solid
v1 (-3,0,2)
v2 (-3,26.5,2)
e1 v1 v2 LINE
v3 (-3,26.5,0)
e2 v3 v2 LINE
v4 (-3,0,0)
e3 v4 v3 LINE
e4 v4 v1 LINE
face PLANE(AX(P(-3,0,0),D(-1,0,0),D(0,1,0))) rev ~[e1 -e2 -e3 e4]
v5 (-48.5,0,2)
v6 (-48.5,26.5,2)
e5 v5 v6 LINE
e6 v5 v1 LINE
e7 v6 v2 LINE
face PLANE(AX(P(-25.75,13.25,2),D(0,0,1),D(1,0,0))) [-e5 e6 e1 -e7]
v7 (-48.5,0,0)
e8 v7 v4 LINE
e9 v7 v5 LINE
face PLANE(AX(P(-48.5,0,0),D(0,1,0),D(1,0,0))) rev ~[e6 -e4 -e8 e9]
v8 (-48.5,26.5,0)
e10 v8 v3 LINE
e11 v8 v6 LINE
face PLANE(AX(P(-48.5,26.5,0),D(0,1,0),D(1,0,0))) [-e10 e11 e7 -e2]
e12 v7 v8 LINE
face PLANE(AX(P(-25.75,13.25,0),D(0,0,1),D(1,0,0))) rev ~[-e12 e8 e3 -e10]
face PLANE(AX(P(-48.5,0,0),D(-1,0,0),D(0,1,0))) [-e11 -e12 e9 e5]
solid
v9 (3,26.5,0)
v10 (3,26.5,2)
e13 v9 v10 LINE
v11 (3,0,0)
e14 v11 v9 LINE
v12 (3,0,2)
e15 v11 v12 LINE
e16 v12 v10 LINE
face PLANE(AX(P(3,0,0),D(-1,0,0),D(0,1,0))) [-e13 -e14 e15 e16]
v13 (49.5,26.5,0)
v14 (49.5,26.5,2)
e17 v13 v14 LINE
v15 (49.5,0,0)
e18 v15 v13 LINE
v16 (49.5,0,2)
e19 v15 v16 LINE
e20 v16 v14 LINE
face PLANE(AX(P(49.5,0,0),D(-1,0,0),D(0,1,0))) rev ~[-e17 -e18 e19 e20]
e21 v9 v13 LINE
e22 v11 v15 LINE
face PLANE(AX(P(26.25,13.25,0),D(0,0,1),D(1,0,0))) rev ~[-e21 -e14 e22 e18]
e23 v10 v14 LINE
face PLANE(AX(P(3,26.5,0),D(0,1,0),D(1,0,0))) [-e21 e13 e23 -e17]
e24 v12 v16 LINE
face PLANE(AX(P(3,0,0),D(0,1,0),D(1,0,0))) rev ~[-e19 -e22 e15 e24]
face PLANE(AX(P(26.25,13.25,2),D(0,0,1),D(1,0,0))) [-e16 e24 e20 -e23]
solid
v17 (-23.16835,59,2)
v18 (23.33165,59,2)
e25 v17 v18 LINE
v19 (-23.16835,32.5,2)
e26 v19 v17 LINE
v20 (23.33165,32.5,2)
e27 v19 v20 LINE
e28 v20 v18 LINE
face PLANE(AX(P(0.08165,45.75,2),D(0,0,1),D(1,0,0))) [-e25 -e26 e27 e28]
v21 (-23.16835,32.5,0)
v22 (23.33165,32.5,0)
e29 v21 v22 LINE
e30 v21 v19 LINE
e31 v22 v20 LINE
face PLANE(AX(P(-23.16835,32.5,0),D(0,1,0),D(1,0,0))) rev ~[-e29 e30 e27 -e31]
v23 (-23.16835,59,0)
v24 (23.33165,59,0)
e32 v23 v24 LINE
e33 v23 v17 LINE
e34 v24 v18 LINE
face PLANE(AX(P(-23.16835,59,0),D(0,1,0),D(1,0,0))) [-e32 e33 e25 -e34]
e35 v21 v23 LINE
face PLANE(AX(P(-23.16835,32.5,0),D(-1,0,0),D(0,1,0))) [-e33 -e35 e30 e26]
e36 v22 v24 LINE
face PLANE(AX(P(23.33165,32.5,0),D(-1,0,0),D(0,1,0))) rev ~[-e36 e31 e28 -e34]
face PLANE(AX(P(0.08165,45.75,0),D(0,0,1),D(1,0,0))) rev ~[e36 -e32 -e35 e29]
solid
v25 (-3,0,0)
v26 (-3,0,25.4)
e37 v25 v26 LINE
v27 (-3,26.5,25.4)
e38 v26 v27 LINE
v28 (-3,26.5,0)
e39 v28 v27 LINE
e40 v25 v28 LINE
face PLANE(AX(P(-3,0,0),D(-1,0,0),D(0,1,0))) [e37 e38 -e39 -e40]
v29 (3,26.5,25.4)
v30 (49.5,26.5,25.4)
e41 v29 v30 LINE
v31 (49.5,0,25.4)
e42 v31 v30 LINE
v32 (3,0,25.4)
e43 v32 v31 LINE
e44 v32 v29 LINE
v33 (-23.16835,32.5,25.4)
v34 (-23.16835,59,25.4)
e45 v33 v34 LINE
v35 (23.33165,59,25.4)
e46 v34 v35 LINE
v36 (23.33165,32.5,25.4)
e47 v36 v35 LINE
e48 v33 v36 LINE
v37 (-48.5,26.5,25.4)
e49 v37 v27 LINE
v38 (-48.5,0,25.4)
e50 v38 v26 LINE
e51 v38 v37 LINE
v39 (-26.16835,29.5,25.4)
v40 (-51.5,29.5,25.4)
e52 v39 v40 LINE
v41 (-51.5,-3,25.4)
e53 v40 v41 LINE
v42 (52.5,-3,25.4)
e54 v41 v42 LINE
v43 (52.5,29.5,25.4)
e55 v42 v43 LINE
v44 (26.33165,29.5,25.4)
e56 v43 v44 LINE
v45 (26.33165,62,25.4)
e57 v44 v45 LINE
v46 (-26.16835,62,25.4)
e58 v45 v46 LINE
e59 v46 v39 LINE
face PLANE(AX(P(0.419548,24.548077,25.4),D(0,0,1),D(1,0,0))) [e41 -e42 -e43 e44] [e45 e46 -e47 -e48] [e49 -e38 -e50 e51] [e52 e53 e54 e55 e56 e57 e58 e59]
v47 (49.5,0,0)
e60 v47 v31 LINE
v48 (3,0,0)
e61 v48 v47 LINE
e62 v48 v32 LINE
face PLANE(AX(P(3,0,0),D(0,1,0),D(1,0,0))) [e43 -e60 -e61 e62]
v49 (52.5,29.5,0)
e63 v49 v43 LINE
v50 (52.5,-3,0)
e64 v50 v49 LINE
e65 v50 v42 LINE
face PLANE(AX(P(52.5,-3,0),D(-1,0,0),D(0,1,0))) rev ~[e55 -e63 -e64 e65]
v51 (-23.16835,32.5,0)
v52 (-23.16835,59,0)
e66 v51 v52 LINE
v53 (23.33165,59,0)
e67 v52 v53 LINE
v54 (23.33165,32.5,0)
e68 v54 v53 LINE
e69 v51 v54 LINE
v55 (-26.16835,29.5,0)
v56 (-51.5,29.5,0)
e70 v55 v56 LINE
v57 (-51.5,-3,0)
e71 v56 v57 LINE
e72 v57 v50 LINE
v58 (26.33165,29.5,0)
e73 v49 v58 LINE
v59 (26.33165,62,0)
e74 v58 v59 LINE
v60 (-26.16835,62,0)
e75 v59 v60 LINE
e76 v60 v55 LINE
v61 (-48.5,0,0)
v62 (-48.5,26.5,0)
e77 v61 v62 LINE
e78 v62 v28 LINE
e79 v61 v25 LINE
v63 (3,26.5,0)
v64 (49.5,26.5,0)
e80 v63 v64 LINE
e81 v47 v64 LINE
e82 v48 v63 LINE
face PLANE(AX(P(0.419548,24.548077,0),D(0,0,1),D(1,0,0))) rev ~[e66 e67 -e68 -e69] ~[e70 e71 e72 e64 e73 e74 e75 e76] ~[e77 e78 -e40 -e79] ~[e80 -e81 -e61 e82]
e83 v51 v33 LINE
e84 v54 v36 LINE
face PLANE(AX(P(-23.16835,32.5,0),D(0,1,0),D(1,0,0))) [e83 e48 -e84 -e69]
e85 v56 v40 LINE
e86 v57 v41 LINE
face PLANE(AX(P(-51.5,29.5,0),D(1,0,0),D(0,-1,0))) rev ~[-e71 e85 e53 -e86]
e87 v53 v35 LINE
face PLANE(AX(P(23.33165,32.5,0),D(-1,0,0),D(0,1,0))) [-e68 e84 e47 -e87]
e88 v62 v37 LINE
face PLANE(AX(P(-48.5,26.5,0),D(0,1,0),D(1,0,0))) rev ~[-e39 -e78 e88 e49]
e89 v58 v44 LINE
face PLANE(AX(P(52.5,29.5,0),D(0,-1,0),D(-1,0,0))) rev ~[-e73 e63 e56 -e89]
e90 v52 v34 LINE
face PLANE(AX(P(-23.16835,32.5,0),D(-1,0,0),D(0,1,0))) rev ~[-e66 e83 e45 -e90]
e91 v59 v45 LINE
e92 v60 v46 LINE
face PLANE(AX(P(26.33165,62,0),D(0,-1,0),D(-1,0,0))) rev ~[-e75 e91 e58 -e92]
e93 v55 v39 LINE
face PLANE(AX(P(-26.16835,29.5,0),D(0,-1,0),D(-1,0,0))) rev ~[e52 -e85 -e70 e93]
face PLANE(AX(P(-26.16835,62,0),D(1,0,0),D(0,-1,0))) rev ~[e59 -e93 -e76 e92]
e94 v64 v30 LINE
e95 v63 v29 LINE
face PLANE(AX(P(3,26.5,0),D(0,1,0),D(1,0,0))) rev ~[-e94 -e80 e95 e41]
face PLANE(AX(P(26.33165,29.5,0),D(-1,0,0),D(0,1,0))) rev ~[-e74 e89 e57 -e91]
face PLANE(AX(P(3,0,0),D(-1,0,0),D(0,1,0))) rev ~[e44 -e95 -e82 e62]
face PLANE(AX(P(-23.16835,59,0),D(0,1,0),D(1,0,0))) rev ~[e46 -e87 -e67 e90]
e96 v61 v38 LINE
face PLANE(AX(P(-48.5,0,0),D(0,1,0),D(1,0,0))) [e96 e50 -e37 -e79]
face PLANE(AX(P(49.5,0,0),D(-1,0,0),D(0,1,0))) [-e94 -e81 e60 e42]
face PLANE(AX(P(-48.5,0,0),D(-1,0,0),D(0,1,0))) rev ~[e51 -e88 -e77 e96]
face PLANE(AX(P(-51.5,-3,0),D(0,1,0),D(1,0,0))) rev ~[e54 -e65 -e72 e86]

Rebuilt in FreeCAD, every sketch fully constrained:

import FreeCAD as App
import Part
import Sketcher
Q = App.Units.Quantity


def add_polygon(sketch, points):
    """Adds a closed chain of lines whose ends are joined by coincident constraints."""
    first, n = sketch.GeometryCount, len(points)
    for a, b in zip(points, points[1:] + points[:1]):
        sketch.addGeometry(Part.LineSegment(App.Vector(*a, 0), App.Vector(*b, 0)), False)
    for i in range(n):
        sketch.addConstraint(Sketcher.Constraint("Coincident", first + i, 2, first + (i + 1) % n, 1))

doc = App.newDocument("Part")
body = doc.addObject("PartDesign::Body", "Body")
body.AllowCompound = True

# Sketch on XY plane
sketch1 = body.newObject("Sketcher::SketchObject", "Sketch")
sketch1.AttachmentSupport = (doc.getObject("XY_Plane"), [""])
sketch1.MapMode = "FlatFace"
add_polygon(sketch1, [(-48, 26), (-48, 0), (-3, 0), (-3, 26)])  # lines 0-3
add_polygon(sketch1, [(3, 26), (3, 0), (50, 0), (50, 26)])  # lines 4-7
add_polygon(sketch1, [(-23, 59), (-23, 32), (23, 32), (23, 59)])  # lines 8-11
sketch1.addConstraint([
    Sketcher.Constraint("Vertical", 0),
    Sketcher.Constraint("Horizontal", 1),
    Sketcher.Constraint("Vertical", 2),
    Sketcher.Constraint("Horizontal", 3),
    Sketcher.Constraint("Vertical", 4),
    Sketcher.Constraint("Horizontal", 5),
    Sketcher.Constraint("Vertical", 6),
    Sketcher.Constraint("Horizontal", 7),
    Sketcher.Constraint("Vertical", 8),
    Sketcher.Constraint("Horizontal", 9),
    Sketcher.Constraint("Vertical", 10),
    Sketcher.Constraint("Horizontal", 11),
    Sketcher.Constraint("Symmetric", 1, 2, 4, 2, -1, 1),
    Sketcher.Constraint("PointOnObject", 0, 2, -1),
    Sketcher.Constraint("Horizontal", 3, 2, 6, 2),
    Sketcher.Constraint("Equal", 7, 9),
    Sketcher.Constraint("Equal", 6, 8),
    Sketcher.Constraint("DistanceX", 1, 1, 1, 2, Q("45.5 mm")),
    Sketcher.Constraint("DistanceX", 5, 1, 5, 2, Q("46.5 mm")),
    Sketcher.Constraint("DistanceY", 0, 2, 0, 1, Q("26.5 mm")),
    Sketcher.Constraint("DistanceX", 1, 2, -1, 1, Q("3 mm")),
    Sketcher.Constraint("DistanceY", -1, 1, 10, 2, Q("59 mm")),
    Sketcher.Constraint("DistanceX", 8, 2, -1, 1, Q("23.16835 mm")),
])
pad1 = body.newObject("PartDesign::Pad", "Pad")
pad1.Profile = sketch1
pad1.Length = 2
body2 = doc.addObject("PartDesign::Body", "Body001")

# Sketch on XY plane
sketch2 = body2.newObject("Sketcher::SketchObject", "Sketch001")
sketch2.AttachmentSupport = (doc.getObject("XY_Plane001"), [""])
sketch2.MapMode = "FlatFace"
add_polygon(sketch2, [(26, 62), (-26, 62), (-26, 30), (-52, 30), (-52, -3), (52, -3), (52, 30), (26, 30)])  # lines 0-7
add_polygon(sketch2, [(-3, 0), (-48, 0), (-48, 26), (-3, 26)])  # lines 8-11
add_polygon(sketch2, [(50, 0), (3, 0), (3, 26), (50, 26)])  # lines 12-15
add_polygon(sketch2, [(23, 32), (-23, 32), (-23, 59), (23, 59)])  # lines 16-19
sketch2.addConstraint([
    Sketcher.Constraint("Horizontal", 0),
    Sketcher.Constraint("Vertical", 1),
    Sketcher.Constraint("Horizontal", 2),
    Sketcher.Constraint("Vertical", 3),
    Sketcher.Constraint("Horizontal", 4),
    Sketcher.Constraint("Vertical", 5),
    Sketcher.Constraint("Horizontal", 6),
    Sketcher.Constraint("Vertical", 7),
    Sketcher.Constraint("Horizontal", 8),
    Sketcher.Constraint("Vertical", 9),
    Sketcher.Constraint("Horizontal", 10),
    Sketcher.Constraint("Vertical", 11),
    Sketcher.Constraint("Horizontal", 12),
    Sketcher.Constraint("Vertical", 13),
    Sketcher.Constraint("Horizontal", 14),
    Sketcher.Constraint("Vertical", 15),
    Sketcher.Constraint("Horizontal", 16),
    Sketcher.Constraint("Vertical", 17),
    Sketcher.Constraint("Horizontal", 18),
    Sketcher.Constraint("Vertical", 19),
    Sketcher.Constraint("Symmetric", 11, 2, 12, 2, -1, 1),
    Sketcher.Constraint("PointOnObject", 8, 2, -1),
    Sketcher.Constraint("Horizontal", 2, 2, 5, 2),
    Sketcher.Constraint("Horizontal", 10, 2, 13, 2),
    Sketcher.Constraint("Equal", 14, 16),
    Sketcher.Constraint("Equal", 1, 3),
    Sketcher.Constraint("Equal", 15, 17),
    Sketcher.Constraint("DistanceX", 4, 1, 4, 2, Q("104 mm")),
    Sketcher.Constraint("DistanceX", 0, 2, 0, 1, Q("52.5 mm")),
    Sketcher.Constraint("DistanceX", 8, 2, 8, 1, Q("45.5 mm")),
    Sketcher.Constraint("DistanceX", 12, 2, 12, 1, Q("46.5 mm")),
    Sketcher.Constraint("DistanceY", 1, 2, 1, 1, Q("32.5 mm")),
    Sketcher.Constraint("DistanceY", 9, 1, 9, 2, Q("26.5 mm")),
    Sketcher.Constraint("DistanceY", -1, 1, 0, 2, Q("62 mm")),
    Sketcher.Constraint("DistanceX", 10, 2, -1, 1, Q("3 mm")),
    Sketcher.Constraint("DistanceY", -1, 1, 17, 2, Q("59 mm")),
    Sketcher.Constraint("DistanceX", 3, 2, 8, 2, Q("3 mm")),
    Sketcher.Constraint("DistanceX", 1, 2, 16, 2, Q("3 mm")),
    Sketcher.Constraint("DistanceX", 2, 2, 2, 1, Q("25.33165 mm")),
])
pad2 = body2.newObject("PartDesign::Pad", "Pad001")
pad2.Profile = sketch2
pad2.Length = 25.4

doc.recompute()
